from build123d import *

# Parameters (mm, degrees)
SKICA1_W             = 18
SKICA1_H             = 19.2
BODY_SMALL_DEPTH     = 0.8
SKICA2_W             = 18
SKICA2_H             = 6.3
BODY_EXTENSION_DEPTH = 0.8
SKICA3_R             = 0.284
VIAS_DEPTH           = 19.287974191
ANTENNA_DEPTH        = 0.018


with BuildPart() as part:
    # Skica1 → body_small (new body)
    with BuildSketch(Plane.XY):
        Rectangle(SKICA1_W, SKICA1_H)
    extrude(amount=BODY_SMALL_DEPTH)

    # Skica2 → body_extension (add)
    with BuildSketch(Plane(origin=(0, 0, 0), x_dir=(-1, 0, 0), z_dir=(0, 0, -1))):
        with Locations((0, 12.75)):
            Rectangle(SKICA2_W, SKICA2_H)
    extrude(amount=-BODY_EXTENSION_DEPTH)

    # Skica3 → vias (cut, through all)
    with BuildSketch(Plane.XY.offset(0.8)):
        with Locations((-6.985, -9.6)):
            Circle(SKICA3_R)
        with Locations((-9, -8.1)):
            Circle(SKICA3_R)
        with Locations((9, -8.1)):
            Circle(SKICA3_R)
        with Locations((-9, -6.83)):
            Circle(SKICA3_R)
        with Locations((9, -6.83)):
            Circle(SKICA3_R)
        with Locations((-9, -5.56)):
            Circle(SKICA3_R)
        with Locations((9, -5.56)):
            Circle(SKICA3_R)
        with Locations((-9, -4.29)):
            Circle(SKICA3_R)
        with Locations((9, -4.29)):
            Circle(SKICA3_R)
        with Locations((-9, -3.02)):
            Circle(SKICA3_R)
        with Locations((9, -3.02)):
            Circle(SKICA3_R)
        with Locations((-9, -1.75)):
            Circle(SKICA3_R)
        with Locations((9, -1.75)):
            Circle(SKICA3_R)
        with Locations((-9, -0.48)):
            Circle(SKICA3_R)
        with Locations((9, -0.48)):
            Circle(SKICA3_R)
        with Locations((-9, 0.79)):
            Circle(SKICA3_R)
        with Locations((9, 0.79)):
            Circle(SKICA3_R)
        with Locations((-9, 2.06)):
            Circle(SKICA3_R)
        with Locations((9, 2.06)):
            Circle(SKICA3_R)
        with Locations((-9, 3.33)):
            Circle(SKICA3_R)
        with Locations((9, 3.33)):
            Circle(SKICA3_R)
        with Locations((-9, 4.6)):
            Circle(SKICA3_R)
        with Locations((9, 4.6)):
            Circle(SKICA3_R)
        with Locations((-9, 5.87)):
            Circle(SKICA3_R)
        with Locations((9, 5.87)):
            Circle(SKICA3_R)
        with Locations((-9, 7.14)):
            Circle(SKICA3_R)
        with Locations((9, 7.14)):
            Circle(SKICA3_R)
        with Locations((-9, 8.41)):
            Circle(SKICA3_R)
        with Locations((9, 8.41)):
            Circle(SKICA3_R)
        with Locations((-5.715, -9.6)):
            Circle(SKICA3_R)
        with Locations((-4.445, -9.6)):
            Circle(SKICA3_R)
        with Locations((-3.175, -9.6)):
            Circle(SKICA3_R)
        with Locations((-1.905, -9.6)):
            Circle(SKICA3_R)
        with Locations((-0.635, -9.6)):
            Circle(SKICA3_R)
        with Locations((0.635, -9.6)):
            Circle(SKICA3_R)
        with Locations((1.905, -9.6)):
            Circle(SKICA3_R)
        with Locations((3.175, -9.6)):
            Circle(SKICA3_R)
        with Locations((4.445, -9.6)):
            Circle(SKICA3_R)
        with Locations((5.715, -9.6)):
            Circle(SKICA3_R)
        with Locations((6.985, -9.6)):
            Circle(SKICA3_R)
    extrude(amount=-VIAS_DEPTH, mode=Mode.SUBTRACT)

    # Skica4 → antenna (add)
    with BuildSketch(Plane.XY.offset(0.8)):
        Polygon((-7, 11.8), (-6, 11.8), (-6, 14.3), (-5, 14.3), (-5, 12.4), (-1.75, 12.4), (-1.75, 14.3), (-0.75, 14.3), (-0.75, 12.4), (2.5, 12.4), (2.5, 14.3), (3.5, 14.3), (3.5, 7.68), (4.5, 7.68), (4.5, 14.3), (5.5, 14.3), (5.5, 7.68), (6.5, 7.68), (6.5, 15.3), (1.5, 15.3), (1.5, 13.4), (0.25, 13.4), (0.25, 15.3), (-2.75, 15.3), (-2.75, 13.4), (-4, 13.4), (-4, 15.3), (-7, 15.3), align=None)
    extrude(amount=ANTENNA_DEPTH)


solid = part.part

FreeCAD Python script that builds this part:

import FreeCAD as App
import Part
import Sketcher

V = App.Vector
Q = App.Units.Quantity


def add_polygon(sketch, points):
    """Adds a closed chain of lines whose ends are joined by coincident constraints."""
    first, n = sketch.GeometryCount, len(points)
    for a, b in zip(points, points[1:] + points[:1]):
        sketch.addGeometry(Part.LineSegment(App.Vector(*a, 0), App.Vector(*b, 0)), False)
    for i in range(n):
        sketch.addConstraint(Sketcher.Constraint("Coincident", first + i, 2, first + (i + 1) % n, 1))

doc = App.newDocument("Part")
body = doc.addObject("PartDesign::Body", "Body")

sketch1 = body.newObject("Sketcher::SketchObject", "Sketch")
sketch1.AttachmentSupport = (doc.getObject("XY_Plane"), [""])
sketch1.MapMode = "FlatFace"
add_polygon(sketch1, [(-9, 10), (-9, -10), (9, -10), (9, 10)])
sketch1.addConstraint([
    Sketcher.Constraint("Vertical", 0),
    Sketcher.Constraint("Horizontal", 1),
    Sketcher.Constraint("Vertical", 2),
    Sketcher.Constraint("Horizontal", 3),
    Sketcher.Constraint("Symmetric", 0, 2, 2, 2, -1, 1),
    Sketcher.Constraint("DistanceX", 1, 1, 1, 2, Q("18 mm")),
    Sketcher.Constraint("DistanceY", 0, 2, 0, 1, Q("19.2 mm")),
])
pad1 = body.newObject("PartDesign::Pad", "Pad")
pad1.Profile = sketch1
pad1.Length = 0.8

sketch2 = body.newObject("Sketcher::SketchObject", "Sketch001")
sketch2.AttachmentSupport = (doc.getObject("XY_Plane"), [""])
sketch2.MapMode = "FlatFace"
add_polygon(sketch2, [(9, 16), (9, 10), (-9, 10), (-9, 16)])
sketch2.addConstraint([
    Sketcher.Constraint("Vertical", 0),
    Sketcher.Constraint("Horizontal", 1),
    Sketcher.Constraint("Vertical", 2),
    Sketcher.Constraint("Horizontal", 3),
    Sketcher.Constraint("DistanceX", 1, 2, 1, 1, Q("18 mm")),
    Sketcher.Constraint("DistanceY", 0, 2, 0, 1, Q("6.3 mm")),
    Sketcher.Constraint("DistanceX", -1, 1, 0, 2, Q("9 mm")),
    Sketcher.Constraint("DistanceY", -1, 1, 0, 2, Q("9.6 mm")),
])
pad2 = body.newObject("PartDesign::Pad", "Pad001")
pad2.Profile = sketch2
pad2.Length = 0.8

sketch3 = body.newObject("Sketcher::SketchObject", "Sketch002")
sketch3.AttachmentSupport = (doc.getObject("XY_Plane"), [""])
sketch3.MapMode = "FlatFace"
sketch3.AttachmentOffset = App.Placement(V(0, 0, 0.8), App.Rotation())
sketch3.addGeometry([
    Part.Circle(V(-6.99, -9.6, 0), V(0, 0, 1), 0.28),
    Part.Circle(V(-9, -8.1, 0), V(0, 0, 1), 0.28),
    Part.Circle(V(9, -8.1, 0), V(0, 0, 1), 0.28),
    Part.Circle(V(-9, -6.83, 0), V(0, 0, 1), 0.28),
    Part.Circle(V(9, -6.83, 0), V(0, 0, 1), 0.28),
    Part.Circle(V(-9, -5.56, 0), V(0, 0, 1), 0.28),
    Part.Circle(V(9, -5.56, 0), V(0, 0, 1), 0.28),
    Part.Circle(V(-9, -4.29, 0), V(0, 0, 1), 0.28),
    Part.Circle(V(9, -4.29, 0), V(0, 0, 1), 0.28),
    Part.Circle(V(-9, -3.02, 0), V(0, 0, 1), 0.28),
    Part.Circle(V(9, -3.02, 0), V(0, 0, 1), 0.28),
    Part.Circle(V(-9, -1.75, 0), V(0, 0, 1), 0.28),
    Part.Circle(V(9, -1.75, 0), V(0, 0, 1), 0.28),
    Part.Circle(V(-9, -0.48, 0), V(0, 0, 1), 0.28),
    Part.Circle(V(9, -0.48, 0), V(0, 0, 1), 0.28),
    Part.Circle(V(-9, 0.79, 0), V(0, 0, 1), 0.28),
    Part.Circle(V(9, 0.79, 0), V(0, 0, 1), 0.28),
    Part.Circle(V(-9, 2.06, 0), V(0, 0, 1), 0.28),
    Part.Circle(V(9, 2.06, 0), V(0, 0, 1), 0.28),
    Part.Circle(V(-9, 3.33, 0), V(0, 0, 1), 0.28),
    Part.Circle(V(9, 3.33, 0), V(0, 0, 1), 0.28),
    Part.Circle(V(-9, 4.6, 0), V(0, 0, 1), 0.28),
    Part.Circle(V(9, 4.6, 0), V(0, 0, 1), 0.28),
    Part.Circle(V(-9, 5.87, 0), V(0, 0, 1), 0.28),
    Part.Circle(V(9, 5.87, 0), V(0, 0, 1), 0.28),
    Part.Circle(V(-9, 7.14, 0), V(0, 0, 1), 0.28),
    Part.Circle(V(9, 7.14, 0), V(0, 0, 1), 0.28),
    Part.Circle(V(-9, 8.41, 0), V(0, 0, 1), 0.28),
    Part.Circle(V(9, 8.41, 0), V(0, 0, 1), 0.28),
    Part.Circle(V(-5.71, -9.6, 0), V(0, 0, 1), 0.28),
    Part.Circle(V(-4.45, -9.6, 0), V(0, 0, 1), 0.28),
    Part.Circle(V(-3.17, -9.6, 0), V(0, 0, 1), 0.28),
    Part.Circle(V(-1.91, -9.6, 0), V(0, 0, 1), 0.28),
    Part.Circle(V(-0.64, -9.6, 0), V(0, 0, 1), 0.28),
    Part.Circle(V(0.64, -9.6, 0), V(0, 0, 1), 0.28),
    Part.Circle(V(1.91, -9.6, 0), V(0, 0, 1), 0.28),
    Part.Circle(V(3.17, -9.6, 0), V(0, 0, 1), 0.28),
    Part.Circle(V(4.45, -9.6, 0), V(0, 0, 1), 0.28),
    Part.Circle(V(5.71, -9.6, 0), V(0, 0, 1), 0.28),
    Part.Circle(V(6.99, -9.6, 0), V(0, 0, 1), 0.28),
], False)
sketch3.addConstraint([
    Sketcher.Constraint("Equal", 0, 1),
    Sketcher.Constraint("Equal", 1, 2),
    Sketcher.Constraint("Equal", 2, 3),
    Sketcher.Constraint("Equal", 3, 4),
    Sketcher.Constraint("Equal", 4, 5),
    Sketcher.Constraint("Equal", 5, 6),
    Sketcher.Constraint("Equal", 6, 7),
    Sketcher.Constraint("Equal", 7, 8),
    Sketcher.Constraint("Equal", 8, 9),
    Sketcher.Constraint("Equal", 9, 10),
    Sketcher.Constraint("Equal", 10, 11),
    Sketcher.Constraint("Equal", 11, 12),
    Sketcher.Constraint("Equal", 12, 13),
    Sketcher.Constraint("Equal", 13, 14),
    Sketcher.Constraint("Equal", 14, 15),
    Sketcher.Constraint("Equal", 15, 16),
    Sketcher.Constraint("Equal", 16, 17),
    Sketcher.Constraint("Equal", 17, 18),
    Sketcher.Constraint("Equal", 18, 19),
    Sketcher.Constraint("Equal", 19, 20),
    Sketcher.Constraint("Equal", 20, 21),
    Sketcher.Constraint("Equal", 21, 22),
    Sketcher.Constraint("Equal", 22, 23),
    Sketcher.Constraint("Equal", 23, 24),
    Sketcher.Constraint("Equal", 24, 25),
    Sketcher.Constraint("Equal", 25, 26),
    Sketcher.Constraint("Equal", 26, 27),
    Sketcher.Constraint("Equal", 27, 28),
    Sketcher.Constraint("Equal", 28, 29),
    Sketcher.Constraint("Equal", 29, 30),
    Sketcher.Constraint("Equal", 30, 31),
    Sketcher.Constraint("Equal", 31, 32),
    Sketcher.Constraint("Equal", 32, 33),
    Sketcher.Constraint("Equal", 33, 34),
    Sketcher.Constraint("Equal", 34, 35),
    Sketcher.Constraint("Equal", 35, 36),
    Sketcher.Constraint("Equal", 36, 37),
    Sketcher.Constraint("Equal", 37, 38),
    Sketcher.Constraint("Equal", 38, 39),
    Sketcher.Constraint("Symmetric", 1, 3, 2, 3, -2),
    Sketcher.Constraint("Symmetric", 3, 3, 4, 3, -2),
    Sketcher.Constraint("Symmetric", 5, 3, 6, 3, -2),
    Sketcher.Constraint("Symmetric", 7, 3, 8, 3, -2),
    Sketcher.Constraint("Symmetric", 9, 3, 10, 3, -2),
    Sketcher.Constraint("Symmetric", 11, 3, 12, 3, -2),
    Sketcher.Constraint("Symmetric", 13, 3, 14, 3, -2),
    Sketcher.Constraint("Symmetric", 15, 3, 16, 3, -2),
    Sketcher.Constraint("Symmetric", 17, 3, 18, 3, -2),
    Sketcher.Constraint("Symmetric", 19, 3, 20, 3, -2),
    Sketcher.Constraint("Symmetric", 21, 3, 22, 3, -2),
    Sketcher.Constraint("Symmetric", 23, 3, 24, 3, -2),
    Sketcher.Constraint("Symmetric", 25, 3, 26, 3, -2),
    Sketcher.Constraint("Symmetric", 27, 3, 28, 3, -2),
    Sketcher.Constraint("Symmetric", 33, 3, 34, 3, -2),
    Sketcher.Constraint("Symmetric", 32, 3, 35, 3, -2),
    Sketcher.Constraint("Symmetric", 31, 3, 36, 3, -2),
    Sketcher.Constraint("Symmetric", 30, 3, 37, 3, -2),
    Sketcher.Constraint("Symmetric", 29, 3, 38, 3, -2),
    Sketcher.Constraint("Symmetric", 0, 3, 39, 3, -2),
    Sketcher.Constraint("Horizontal", 0, 3, 29, 3),
    Sketcher.Constraint("Horizontal", 29, 3, 30, 3),
    Sketcher.Constraint("Horizontal", 30, 3, 31, 3),
    Sketcher.Constraint("Horizontal", 31, 3, 32, 3),
    Sketcher.Constraint("Horizontal", 32, 3, 33, 3),
    Sketcher.Constraint("Vertical", 1, 3, 3, 3),
    Sketcher.Constraint("Vertical", 3, 3, 5, 3),
    Sketcher.Constraint("Vertical", 5, 3, 7, 3),
    Sketcher.Constraint("Vertical", 7, 3, 9, 3),
    Sketcher.Constraint("Vertical", 9, 3, 11, 3),
    Sketcher.Constraint("Vertical", 11, 3, 13, 3),
    Sketcher.Constraint("Vertical", 13, 3, 15, 3),
    Sketcher.Constraint("Vertical", 15, 3, 17, 3),
    Sketcher.Constraint("Vertical", 17, 3, 19, 3),
    Sketcher.Constraint("Vertical", 19, 3, 21, 3),
    Sketcher.Constraint("Vertical", 21, 3, 23, 3),
    Sketcher.Constraint("Vertical", 23, 3, 25, 3),
    Sketcher.Constraint("Vertical", 25, 3, 27, 3),
    Sketcher.Constraint("Diameter", 0, Q("0.568 mm")),
    Sketcher.Constraint("DistanceX", 1, 3, -1, 1, Q("9 mm")),
    Sketcher.Constraint("DistanceY", 0, 3, -1, 1, Q("9.6 mm")),
    Sketcher.Constraint("DistanceY", 1, 3, -1, 1, Q("8.1 mm")),
    Sketcher.Constraint("DistanceY", -1, 1, 21, 3, Q("4.6 mm")),
    Sketcher.Constraint("DistanceY", 3, 3, -1, 1, Q("6.83 mm")),
    Sketcher.Constraint("DistanceY", 5, 3, -1, 1, Q("5.56 mm")),
    Sketcher.Constraint("DistanceY", 7, 3, -1, 1, Q("4.29 mm")),
    Sketcher.Constraint("DistanceY", 9, 3, -1, 1, Q("3.02 mm")),
    Sketcher.Constraint("DistanceY", 11, 3, -1, 1, Q("1.75 mm")),
    Sketcher.Constraint("DistanceY", 13, 3, -1, 1, Q("0.48 mm")),
    Sketcher.Constraint("DistanceY", -1, 1, 15, 3, Q("0.79 mm")),
    Sketcher.Constraint("DistanceY", -1, 1, 17, 3, Q("2.06 mm")),
    Sketcher.Constraint("DistanceY", -1, 1, 19, 3, Q("3.33 mm")),
    Sketcher.Constraint("DistanceY", -1, 1, 23, 3, Q("5.87 mm")),
    Sketcher.Constraint("DistanceY", -1, 1, 25, 3, Q("7.14 mm")),
    Sketcher.Constraint("DistanceY", -1, 1, 27, 3, Q("8.41 mm")),
    Sketcher.Constraint("DistanceX", 0, 3, 29, 3, Q("1.27 mm")),
    Sketcher.Constraint("DistanceX", 29, 3, 30, 3, Q("1.27 mm")),
    Sketcher.Constraint("DistanceX", 30, 3, 31, 3, Q("1.27 mm")),
    Sketcher.Constraint("DistanceX", 31, 3, 32, 3, Q("1.27 mm")),
    Sketcher.Constraint("DistanceX", 32, 3, 33, 3, Q("1.27 mm")),
    Sketcher.Constraint("DistanceX", 33, 3, 34, 3, Q("1.27 mm")),
])
pocket1 = body.newObject("PartDesign::Pocket", "Pocket")
pocket1.Profile = sketch3
pocket1.Type = "ThroughAll"

sketch4 = body.newObject("Sketcher::SketchObject", "Sketch003")
sketch4.AttachmentSupport = (doc.getObject("XY_Plane"), [""])
sketch4.MapMode = "FlatFace"
sketch4.AttachmentOffset = App.Placement(V(0, 0, 0.8), App.Rotation())
add_polygon(sketch4, [(-7, 11.8), (-6, 11.8), (-6, 14.3), (-5, 14.3), (-5, 12.4), (-1.8, 12.4), (-1.8, 14.3), (-0.8, 14.3), (-0.8, 12.4), (2.5, 12.4), (2.5, 14.3), (3.5, 14.3), (3.5, 7.7), (4.5, 7.7), (4.5, 14.3), (5.5, 14.3), (5.5, 7.7), (6.5, 7.7), (6.5, 15.3), (1.5, 15.3), (1.5, 13.4), (0.2, 13.4), (0.2, 15.3), (-2.8, 15.3), (-2.8, 13.4), (-4, 13.4), (-4, 15.3), (-7, 15.3)])
sketch4.addConstraint([
    Sketcher.Constraint("Horizontal", 0),
    Sketcher.Constraint("Vertical", 1),
    Sketcher.Constraint("Horizontal", 2),
    Sketcher.Constraint("Vertical", 3),
    Sketcher.Constraint("Horizontal", 4),
    Sketcher.Constraint("Vertical", 5),
    Sketcher.Constraint("Horizontal", 6),
    Sketcher.Constraint("Vertical", 7),
    Sketcher.Constraint("Horizontal", 8),
    Sketcher.Constraint("Vertical", 9),
    Sketcher.Constraint("Horizontal", 10),
    Sketcher.Constraint("Vertical", 11),
    Sketcher.Constraint("Horizontal", 12),
    Sketcher.Constraint("Vertical", 13),
    Sketcher.Constraint("Horizontal", 14),
    Sketcher.Constraint("Vertical", 15),
    Sketcher.Constraint("Horizontal", 16),
    Sketcher.Constraint("Vertical", 17),
    Sketcher.Constraint("Horizontal", 18),
    Sketcher.Constraint("Vertical", 19),
    Sketcher.Constraint("Horizontal", 20),
    Sketcher.Constraint("Vertical", 21),
    Sketcher.Constraint("Horizontal", 22),
    Sketcher.Constraint("Vertical", 23),
    Sketcher.Constraint("Horizontal", 24),
    Sketcher.Constraint("Vertical", 25),
    Sketcher.Constraint("Horizontal", 26),
    Sketcher.Constraint("Vertical", 27),
    Sketcher.Constraint("Horizontal", 2, 2, 5, 2),
    Sketcher.Constraint("Horizontal", 4, 2, 7, 2),
    Sketcher.Constraint("Horizontal", 6, 2, 9, 2),
    Sketcher.Constraint("Horizontal", 10, 2, 13, 2),
    Sketcher.Constraint("Horizontal", 12, 2, 15, 2),
    Sketcher.Constraint("Horizontal", 18, 2, 21, 2),
    Sketcher.Constraint("Horizontal", 20, 2, 23, 2),
    Sketcher.Constraint("Horizontal", 22, 2, 25, 2),
    Sketcher.Constraint("Equal", 0, 2),
    Sketcher.Constraint("Equal", 2, 6),
    Sketcher.Constraint("Equal", 4, 8),
    Sketcher.Constraint("Equal", 6, 10),
    Sketcher.Constraint("Equal", 10, 12),
    Sketcher.Constraint("Equal", 12, 14),
    Sketcher.Constraint("Equal", 14, 16),
    Sketcher.Constraint("Equal", 20, 24),
    Sketcher.Constraint("Equal", 22, 26),
    Sketcher.Constraint("Equal", 9, 19),
    Sketcher.Constraint("DistanceX", 0, 1, 0, 2, Q("1 mm")),
    Sketcher.Constraint("DistanceX", 18, 2, 18, 1, Q("5 mm")),
    Sketcher.Constraint("DistanceX", 22, 2, 22, 1, Q("3 mm")),
    Sketcher.Constraint("DistanceY", 1, 1, 1, 2, Q("2.5 mm")),
    Sketcher.Constraint("DistanceY", 3, 2, 3, 1, Q("1.9 mm")),
    Sketcher.Constraint("DistanceY", 27, 2, 27, 1, Q("3.5 mm")),
    Sketcher.Constraint("DistanceX", 0, 2, -1, 1, Q("6 mm")),
    Sketcher.Constraint("DistanceX", 4, 1, 4, 2, Q("3.25 mm")),
    Sketcher.Constraint("DistanceY", 11, 2, 11, 1, Q("6.62 mm")),
    Sketcher.Constraint("DistanceY", -1, 1, 0, 2, Q("11.8 mm")),
])
pad3 = body.newObject("PartDesign::Pad", "Pad002")
pad3.Profile = sketch4
pad3.Length = 0.018

doc.recompute()
